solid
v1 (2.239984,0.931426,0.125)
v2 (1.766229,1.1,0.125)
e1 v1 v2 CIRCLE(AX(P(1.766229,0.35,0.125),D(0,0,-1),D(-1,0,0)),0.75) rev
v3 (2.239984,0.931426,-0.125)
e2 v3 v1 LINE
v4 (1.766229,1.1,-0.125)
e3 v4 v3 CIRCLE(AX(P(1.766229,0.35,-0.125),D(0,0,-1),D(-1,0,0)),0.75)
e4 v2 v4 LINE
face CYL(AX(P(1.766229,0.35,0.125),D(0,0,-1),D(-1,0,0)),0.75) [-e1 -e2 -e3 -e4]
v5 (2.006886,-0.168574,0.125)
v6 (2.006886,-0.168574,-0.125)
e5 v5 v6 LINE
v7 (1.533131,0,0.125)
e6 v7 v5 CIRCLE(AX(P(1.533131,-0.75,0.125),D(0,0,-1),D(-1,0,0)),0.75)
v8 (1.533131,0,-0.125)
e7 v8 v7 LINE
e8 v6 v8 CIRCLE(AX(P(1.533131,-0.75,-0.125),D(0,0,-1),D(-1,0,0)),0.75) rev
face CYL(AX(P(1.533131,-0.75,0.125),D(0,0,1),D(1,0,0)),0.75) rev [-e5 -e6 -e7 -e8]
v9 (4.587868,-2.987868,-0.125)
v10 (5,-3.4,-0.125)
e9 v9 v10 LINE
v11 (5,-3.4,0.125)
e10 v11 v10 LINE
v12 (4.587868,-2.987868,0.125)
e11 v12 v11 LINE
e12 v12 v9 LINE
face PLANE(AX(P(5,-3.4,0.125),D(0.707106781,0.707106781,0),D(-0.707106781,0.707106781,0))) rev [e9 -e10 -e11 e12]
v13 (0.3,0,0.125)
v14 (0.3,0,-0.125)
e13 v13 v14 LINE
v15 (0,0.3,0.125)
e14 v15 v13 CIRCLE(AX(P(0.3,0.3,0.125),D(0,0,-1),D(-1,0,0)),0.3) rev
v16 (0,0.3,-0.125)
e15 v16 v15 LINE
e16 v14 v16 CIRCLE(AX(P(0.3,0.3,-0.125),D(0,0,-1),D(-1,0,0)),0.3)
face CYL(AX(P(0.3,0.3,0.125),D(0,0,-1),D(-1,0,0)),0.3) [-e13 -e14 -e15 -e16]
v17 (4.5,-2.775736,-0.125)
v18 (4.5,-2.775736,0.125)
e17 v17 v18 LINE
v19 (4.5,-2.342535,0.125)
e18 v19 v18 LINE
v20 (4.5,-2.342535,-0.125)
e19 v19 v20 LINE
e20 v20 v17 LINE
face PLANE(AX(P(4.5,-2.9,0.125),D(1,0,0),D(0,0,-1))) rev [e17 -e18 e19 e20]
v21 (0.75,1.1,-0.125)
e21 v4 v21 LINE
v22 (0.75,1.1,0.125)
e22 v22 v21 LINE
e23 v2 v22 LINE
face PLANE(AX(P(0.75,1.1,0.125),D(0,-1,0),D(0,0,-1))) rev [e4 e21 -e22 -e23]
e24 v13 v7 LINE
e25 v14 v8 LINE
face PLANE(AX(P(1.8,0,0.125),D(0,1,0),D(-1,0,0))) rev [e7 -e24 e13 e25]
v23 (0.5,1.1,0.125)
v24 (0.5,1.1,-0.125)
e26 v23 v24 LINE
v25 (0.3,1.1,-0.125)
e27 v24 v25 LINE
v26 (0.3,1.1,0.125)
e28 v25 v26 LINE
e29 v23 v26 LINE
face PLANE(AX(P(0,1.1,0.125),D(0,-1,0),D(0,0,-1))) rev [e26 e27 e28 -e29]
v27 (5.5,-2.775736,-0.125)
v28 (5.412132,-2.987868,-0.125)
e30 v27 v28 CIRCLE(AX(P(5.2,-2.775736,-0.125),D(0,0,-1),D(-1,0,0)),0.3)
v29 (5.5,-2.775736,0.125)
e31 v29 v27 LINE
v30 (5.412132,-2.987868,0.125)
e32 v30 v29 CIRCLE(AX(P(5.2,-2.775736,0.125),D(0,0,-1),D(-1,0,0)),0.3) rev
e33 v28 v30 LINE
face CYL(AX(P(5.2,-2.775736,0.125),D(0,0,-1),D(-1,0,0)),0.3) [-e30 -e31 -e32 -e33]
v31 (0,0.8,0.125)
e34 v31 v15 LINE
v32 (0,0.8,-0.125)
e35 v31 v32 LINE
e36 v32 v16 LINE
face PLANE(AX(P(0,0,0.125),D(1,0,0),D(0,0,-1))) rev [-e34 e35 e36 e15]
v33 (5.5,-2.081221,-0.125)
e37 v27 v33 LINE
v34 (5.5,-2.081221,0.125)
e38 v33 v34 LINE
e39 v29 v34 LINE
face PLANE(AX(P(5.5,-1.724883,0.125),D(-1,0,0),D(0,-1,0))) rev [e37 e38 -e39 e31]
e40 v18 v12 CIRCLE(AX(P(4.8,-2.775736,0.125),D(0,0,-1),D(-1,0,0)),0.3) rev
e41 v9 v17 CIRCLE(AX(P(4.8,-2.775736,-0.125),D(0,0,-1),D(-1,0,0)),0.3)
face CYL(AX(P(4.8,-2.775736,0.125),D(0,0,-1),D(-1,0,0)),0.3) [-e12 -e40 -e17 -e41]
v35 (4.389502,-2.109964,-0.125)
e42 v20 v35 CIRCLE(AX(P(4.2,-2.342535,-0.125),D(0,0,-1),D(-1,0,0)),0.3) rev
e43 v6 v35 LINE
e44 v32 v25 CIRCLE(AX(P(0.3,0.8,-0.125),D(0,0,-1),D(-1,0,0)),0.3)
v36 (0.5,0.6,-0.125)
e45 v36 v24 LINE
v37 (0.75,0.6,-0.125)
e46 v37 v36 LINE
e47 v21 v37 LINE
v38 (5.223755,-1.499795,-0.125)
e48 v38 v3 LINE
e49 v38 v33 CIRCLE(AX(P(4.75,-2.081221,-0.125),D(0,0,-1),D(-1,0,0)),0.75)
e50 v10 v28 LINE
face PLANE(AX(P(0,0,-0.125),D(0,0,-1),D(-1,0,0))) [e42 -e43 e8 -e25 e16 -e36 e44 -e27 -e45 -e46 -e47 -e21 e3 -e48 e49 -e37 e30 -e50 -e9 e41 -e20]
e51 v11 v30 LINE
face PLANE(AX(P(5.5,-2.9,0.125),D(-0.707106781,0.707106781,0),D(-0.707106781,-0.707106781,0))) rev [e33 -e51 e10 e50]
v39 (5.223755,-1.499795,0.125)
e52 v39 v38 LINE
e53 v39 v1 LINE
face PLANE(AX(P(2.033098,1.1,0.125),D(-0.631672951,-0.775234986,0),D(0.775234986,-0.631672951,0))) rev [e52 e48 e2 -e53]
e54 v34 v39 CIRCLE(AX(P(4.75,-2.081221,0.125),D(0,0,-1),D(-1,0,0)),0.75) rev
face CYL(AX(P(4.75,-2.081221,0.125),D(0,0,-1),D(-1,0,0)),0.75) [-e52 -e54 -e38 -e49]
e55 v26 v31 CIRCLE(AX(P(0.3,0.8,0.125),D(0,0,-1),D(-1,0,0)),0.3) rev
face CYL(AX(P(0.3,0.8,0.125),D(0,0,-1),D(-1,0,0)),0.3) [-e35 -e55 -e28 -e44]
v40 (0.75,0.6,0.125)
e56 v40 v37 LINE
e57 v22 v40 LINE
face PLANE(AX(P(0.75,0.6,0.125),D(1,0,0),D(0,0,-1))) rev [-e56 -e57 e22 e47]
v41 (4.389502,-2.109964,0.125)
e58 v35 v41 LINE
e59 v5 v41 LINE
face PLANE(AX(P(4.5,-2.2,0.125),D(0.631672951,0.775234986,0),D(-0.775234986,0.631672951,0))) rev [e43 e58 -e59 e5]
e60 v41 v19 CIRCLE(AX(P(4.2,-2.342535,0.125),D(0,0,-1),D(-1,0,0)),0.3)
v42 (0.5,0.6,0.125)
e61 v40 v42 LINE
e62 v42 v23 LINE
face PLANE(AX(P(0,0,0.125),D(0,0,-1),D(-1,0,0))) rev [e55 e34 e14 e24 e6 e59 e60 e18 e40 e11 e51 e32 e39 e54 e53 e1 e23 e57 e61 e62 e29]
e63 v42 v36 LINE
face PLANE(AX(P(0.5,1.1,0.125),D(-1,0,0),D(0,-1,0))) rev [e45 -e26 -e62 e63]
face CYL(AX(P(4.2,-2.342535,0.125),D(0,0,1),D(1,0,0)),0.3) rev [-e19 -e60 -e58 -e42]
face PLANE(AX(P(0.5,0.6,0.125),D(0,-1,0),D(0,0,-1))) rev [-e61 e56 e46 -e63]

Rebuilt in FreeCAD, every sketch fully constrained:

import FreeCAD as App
import Part
import Sketcher
from FreeCAD import Vector
Q = App.Units.Quantity


def edges_at(feature, points):
    """Names of the edges that pass closest to the given points."""
    edges = feature.Shape.Edges
    near = lambda p: min(range(len(edges)), key=lambda i: edges[i].distToShape(Part.Vertex(*p))[0])
    return sorted({f"Edge{near(p) + 1}" for p in points})


def add_polygon(sketch, points):
    """Adds a closed chain of lines whose ends are joined by coincident constraints."""
    first, n = sketch.GeometryCount, len(points)
    for a, b in zip(points, points[1:] + points[:1]):
        sketch.addGeometry(Part.LineSegment(App.Vector(*a, 0), App.Vector(*b, 0)), False)
    for i in range(n):
        sketch.addConstraint(Sketcher.Constraint("Coincident", first + i, 2, first + (i + 1) % n, 1))

doc = App.newDocument("Part")
body = doc.addObject("PartDesign::Body", "Body")

# Sketch on XY plane
sketch1 = body.newObject("Sketcher::SketchObject", "Sketch")
sketch1.AttachmentSupport = (doc.getObject("XY_Plane"), [""])
sketch1.MapMode = "FlatFace"
add_polygon(sketch1, [(0, 1.1), (0, 0), (1.8, 0), (4.5, -2.2), (4.5, -2.9), (5, -3.4), (5.5, -2.9), (5.5, -1.724883), (2.033098, 1.1), (0.75, 1.1), (0.75, 0.6), (0.5, 0.6), (0.5, 1.1)])  # lines 0-12
sketch1.addConstraint(Sketcher.Constraint("Vertical", 0))
sketch1.addConstraint(Sketcher.Constraint("Horizontal", 1))
sketch1.addConstraint(Sketcher.Constraint("Vertical", 3))
sketch1.addConstraint(Sketcher.Constraint("Vertical", 6))
sketch1.addConstraint(Sketcher.Constraint("Horizontal", 8))
sketch1.addConstraint(Sketcher.Constraint("Vertical", 9))
sketch1.addConstraint(Sketcher.Constraint("Horizontal", 10))
sketch1.addConstraint(Sketcher.Constraint("Vertical", 11))
sketch1.addConstraint(Sketcher.Constraint("Horizontal", 12))
sketch1.addConstraint(Sketcher.Constraint("Coincident", 0, 2, -1, 1))
sketch1.addConstraint(Sketcher.Constraint("Perpendicular", 4, 5))
sketch1.addConstraint(Sketcher.Constraint("Parallel", 2, 7))
sketch1.addConstraint(Sketcher.Constraint("Horizontal", 3, 2, 5, 2))
sketch1.addConstraint(Sketcher.Constraint("Horizontal", 8, 2, 11, 2))
sketch1.addConstraint(Sketcher.Constraint("Equal", 12, 9))
sketch1.addConstraint(Sketcher.Constraint("Equal", 4, 5))
sketch1.addConstraint(Sketcher.Constraint("DistanceX", 1, 1, 1, 2, Q("1.8 mm")))
sketch1.addConstraint(Sketcher.Constraint("DistanceX", 12, 2, 12, 1, Q("0.5 mm")))
sketch1.addConstraint(Sketcher.Constraint("DistanceY", 0, 2, 0, 1, Q("1.1 mm")))
sketch1.addConstraint(Sketcher.Constraint("DistanceY", 3, 2, 3, 1, Q("0.7 mm")))
sketch1.addConstraint(Sketcher.Constraint("DistanceX", -1, 1, 4, 2, Q("5 mm")))
sketch1.addConstraint(Sketcher.Constraint("DistanceX", 3, 2, 5, 2, Q("1 mm")))
sketch1.addConstraint(Sketcher.Constraint("DistanceY", 3, 2, 7, 2, Q("4 mm")))
sketch1.addConstraint(Sketcher.Constraint("DistanceX", 10, 2, 10, 1, Q("0.25 mm")))
sketch1.addConstraint(Sketcher.Constraint("DistanceX", 8, 2, 8, 1, Q("1.283098 mm")))
pad1 = body.newObject("PartDesign::Pad", "Pad")
pad1.Profile = sketch1
pad1.Length = 0.25
pad1.Midplane = True
doc.recompute()

fillet = body.newObject("PartDesign::Fillet", "Fillet")
fillet.Base = (pad1, edges_at(pad1, [
    (0, 0, 0),
    (0, 1.1, 0),
    (5.5, -2.9, 0),
    (4.5, -2.9, 0),
    (4.5, -2.2, 0),
]))
fillet.Radius = 0.3
doc.recompute()

fillet2 = body.newObject("PartDesign::Fillet", "Fillet001")
fillet2.Base = (fillet, edges_at(fillet, [(2.033, 1.1, 0), (5.5, -1.725, 0), (1.8, 0, 0)]))
fillet2.Radius = 0.75

doc.recompute()
